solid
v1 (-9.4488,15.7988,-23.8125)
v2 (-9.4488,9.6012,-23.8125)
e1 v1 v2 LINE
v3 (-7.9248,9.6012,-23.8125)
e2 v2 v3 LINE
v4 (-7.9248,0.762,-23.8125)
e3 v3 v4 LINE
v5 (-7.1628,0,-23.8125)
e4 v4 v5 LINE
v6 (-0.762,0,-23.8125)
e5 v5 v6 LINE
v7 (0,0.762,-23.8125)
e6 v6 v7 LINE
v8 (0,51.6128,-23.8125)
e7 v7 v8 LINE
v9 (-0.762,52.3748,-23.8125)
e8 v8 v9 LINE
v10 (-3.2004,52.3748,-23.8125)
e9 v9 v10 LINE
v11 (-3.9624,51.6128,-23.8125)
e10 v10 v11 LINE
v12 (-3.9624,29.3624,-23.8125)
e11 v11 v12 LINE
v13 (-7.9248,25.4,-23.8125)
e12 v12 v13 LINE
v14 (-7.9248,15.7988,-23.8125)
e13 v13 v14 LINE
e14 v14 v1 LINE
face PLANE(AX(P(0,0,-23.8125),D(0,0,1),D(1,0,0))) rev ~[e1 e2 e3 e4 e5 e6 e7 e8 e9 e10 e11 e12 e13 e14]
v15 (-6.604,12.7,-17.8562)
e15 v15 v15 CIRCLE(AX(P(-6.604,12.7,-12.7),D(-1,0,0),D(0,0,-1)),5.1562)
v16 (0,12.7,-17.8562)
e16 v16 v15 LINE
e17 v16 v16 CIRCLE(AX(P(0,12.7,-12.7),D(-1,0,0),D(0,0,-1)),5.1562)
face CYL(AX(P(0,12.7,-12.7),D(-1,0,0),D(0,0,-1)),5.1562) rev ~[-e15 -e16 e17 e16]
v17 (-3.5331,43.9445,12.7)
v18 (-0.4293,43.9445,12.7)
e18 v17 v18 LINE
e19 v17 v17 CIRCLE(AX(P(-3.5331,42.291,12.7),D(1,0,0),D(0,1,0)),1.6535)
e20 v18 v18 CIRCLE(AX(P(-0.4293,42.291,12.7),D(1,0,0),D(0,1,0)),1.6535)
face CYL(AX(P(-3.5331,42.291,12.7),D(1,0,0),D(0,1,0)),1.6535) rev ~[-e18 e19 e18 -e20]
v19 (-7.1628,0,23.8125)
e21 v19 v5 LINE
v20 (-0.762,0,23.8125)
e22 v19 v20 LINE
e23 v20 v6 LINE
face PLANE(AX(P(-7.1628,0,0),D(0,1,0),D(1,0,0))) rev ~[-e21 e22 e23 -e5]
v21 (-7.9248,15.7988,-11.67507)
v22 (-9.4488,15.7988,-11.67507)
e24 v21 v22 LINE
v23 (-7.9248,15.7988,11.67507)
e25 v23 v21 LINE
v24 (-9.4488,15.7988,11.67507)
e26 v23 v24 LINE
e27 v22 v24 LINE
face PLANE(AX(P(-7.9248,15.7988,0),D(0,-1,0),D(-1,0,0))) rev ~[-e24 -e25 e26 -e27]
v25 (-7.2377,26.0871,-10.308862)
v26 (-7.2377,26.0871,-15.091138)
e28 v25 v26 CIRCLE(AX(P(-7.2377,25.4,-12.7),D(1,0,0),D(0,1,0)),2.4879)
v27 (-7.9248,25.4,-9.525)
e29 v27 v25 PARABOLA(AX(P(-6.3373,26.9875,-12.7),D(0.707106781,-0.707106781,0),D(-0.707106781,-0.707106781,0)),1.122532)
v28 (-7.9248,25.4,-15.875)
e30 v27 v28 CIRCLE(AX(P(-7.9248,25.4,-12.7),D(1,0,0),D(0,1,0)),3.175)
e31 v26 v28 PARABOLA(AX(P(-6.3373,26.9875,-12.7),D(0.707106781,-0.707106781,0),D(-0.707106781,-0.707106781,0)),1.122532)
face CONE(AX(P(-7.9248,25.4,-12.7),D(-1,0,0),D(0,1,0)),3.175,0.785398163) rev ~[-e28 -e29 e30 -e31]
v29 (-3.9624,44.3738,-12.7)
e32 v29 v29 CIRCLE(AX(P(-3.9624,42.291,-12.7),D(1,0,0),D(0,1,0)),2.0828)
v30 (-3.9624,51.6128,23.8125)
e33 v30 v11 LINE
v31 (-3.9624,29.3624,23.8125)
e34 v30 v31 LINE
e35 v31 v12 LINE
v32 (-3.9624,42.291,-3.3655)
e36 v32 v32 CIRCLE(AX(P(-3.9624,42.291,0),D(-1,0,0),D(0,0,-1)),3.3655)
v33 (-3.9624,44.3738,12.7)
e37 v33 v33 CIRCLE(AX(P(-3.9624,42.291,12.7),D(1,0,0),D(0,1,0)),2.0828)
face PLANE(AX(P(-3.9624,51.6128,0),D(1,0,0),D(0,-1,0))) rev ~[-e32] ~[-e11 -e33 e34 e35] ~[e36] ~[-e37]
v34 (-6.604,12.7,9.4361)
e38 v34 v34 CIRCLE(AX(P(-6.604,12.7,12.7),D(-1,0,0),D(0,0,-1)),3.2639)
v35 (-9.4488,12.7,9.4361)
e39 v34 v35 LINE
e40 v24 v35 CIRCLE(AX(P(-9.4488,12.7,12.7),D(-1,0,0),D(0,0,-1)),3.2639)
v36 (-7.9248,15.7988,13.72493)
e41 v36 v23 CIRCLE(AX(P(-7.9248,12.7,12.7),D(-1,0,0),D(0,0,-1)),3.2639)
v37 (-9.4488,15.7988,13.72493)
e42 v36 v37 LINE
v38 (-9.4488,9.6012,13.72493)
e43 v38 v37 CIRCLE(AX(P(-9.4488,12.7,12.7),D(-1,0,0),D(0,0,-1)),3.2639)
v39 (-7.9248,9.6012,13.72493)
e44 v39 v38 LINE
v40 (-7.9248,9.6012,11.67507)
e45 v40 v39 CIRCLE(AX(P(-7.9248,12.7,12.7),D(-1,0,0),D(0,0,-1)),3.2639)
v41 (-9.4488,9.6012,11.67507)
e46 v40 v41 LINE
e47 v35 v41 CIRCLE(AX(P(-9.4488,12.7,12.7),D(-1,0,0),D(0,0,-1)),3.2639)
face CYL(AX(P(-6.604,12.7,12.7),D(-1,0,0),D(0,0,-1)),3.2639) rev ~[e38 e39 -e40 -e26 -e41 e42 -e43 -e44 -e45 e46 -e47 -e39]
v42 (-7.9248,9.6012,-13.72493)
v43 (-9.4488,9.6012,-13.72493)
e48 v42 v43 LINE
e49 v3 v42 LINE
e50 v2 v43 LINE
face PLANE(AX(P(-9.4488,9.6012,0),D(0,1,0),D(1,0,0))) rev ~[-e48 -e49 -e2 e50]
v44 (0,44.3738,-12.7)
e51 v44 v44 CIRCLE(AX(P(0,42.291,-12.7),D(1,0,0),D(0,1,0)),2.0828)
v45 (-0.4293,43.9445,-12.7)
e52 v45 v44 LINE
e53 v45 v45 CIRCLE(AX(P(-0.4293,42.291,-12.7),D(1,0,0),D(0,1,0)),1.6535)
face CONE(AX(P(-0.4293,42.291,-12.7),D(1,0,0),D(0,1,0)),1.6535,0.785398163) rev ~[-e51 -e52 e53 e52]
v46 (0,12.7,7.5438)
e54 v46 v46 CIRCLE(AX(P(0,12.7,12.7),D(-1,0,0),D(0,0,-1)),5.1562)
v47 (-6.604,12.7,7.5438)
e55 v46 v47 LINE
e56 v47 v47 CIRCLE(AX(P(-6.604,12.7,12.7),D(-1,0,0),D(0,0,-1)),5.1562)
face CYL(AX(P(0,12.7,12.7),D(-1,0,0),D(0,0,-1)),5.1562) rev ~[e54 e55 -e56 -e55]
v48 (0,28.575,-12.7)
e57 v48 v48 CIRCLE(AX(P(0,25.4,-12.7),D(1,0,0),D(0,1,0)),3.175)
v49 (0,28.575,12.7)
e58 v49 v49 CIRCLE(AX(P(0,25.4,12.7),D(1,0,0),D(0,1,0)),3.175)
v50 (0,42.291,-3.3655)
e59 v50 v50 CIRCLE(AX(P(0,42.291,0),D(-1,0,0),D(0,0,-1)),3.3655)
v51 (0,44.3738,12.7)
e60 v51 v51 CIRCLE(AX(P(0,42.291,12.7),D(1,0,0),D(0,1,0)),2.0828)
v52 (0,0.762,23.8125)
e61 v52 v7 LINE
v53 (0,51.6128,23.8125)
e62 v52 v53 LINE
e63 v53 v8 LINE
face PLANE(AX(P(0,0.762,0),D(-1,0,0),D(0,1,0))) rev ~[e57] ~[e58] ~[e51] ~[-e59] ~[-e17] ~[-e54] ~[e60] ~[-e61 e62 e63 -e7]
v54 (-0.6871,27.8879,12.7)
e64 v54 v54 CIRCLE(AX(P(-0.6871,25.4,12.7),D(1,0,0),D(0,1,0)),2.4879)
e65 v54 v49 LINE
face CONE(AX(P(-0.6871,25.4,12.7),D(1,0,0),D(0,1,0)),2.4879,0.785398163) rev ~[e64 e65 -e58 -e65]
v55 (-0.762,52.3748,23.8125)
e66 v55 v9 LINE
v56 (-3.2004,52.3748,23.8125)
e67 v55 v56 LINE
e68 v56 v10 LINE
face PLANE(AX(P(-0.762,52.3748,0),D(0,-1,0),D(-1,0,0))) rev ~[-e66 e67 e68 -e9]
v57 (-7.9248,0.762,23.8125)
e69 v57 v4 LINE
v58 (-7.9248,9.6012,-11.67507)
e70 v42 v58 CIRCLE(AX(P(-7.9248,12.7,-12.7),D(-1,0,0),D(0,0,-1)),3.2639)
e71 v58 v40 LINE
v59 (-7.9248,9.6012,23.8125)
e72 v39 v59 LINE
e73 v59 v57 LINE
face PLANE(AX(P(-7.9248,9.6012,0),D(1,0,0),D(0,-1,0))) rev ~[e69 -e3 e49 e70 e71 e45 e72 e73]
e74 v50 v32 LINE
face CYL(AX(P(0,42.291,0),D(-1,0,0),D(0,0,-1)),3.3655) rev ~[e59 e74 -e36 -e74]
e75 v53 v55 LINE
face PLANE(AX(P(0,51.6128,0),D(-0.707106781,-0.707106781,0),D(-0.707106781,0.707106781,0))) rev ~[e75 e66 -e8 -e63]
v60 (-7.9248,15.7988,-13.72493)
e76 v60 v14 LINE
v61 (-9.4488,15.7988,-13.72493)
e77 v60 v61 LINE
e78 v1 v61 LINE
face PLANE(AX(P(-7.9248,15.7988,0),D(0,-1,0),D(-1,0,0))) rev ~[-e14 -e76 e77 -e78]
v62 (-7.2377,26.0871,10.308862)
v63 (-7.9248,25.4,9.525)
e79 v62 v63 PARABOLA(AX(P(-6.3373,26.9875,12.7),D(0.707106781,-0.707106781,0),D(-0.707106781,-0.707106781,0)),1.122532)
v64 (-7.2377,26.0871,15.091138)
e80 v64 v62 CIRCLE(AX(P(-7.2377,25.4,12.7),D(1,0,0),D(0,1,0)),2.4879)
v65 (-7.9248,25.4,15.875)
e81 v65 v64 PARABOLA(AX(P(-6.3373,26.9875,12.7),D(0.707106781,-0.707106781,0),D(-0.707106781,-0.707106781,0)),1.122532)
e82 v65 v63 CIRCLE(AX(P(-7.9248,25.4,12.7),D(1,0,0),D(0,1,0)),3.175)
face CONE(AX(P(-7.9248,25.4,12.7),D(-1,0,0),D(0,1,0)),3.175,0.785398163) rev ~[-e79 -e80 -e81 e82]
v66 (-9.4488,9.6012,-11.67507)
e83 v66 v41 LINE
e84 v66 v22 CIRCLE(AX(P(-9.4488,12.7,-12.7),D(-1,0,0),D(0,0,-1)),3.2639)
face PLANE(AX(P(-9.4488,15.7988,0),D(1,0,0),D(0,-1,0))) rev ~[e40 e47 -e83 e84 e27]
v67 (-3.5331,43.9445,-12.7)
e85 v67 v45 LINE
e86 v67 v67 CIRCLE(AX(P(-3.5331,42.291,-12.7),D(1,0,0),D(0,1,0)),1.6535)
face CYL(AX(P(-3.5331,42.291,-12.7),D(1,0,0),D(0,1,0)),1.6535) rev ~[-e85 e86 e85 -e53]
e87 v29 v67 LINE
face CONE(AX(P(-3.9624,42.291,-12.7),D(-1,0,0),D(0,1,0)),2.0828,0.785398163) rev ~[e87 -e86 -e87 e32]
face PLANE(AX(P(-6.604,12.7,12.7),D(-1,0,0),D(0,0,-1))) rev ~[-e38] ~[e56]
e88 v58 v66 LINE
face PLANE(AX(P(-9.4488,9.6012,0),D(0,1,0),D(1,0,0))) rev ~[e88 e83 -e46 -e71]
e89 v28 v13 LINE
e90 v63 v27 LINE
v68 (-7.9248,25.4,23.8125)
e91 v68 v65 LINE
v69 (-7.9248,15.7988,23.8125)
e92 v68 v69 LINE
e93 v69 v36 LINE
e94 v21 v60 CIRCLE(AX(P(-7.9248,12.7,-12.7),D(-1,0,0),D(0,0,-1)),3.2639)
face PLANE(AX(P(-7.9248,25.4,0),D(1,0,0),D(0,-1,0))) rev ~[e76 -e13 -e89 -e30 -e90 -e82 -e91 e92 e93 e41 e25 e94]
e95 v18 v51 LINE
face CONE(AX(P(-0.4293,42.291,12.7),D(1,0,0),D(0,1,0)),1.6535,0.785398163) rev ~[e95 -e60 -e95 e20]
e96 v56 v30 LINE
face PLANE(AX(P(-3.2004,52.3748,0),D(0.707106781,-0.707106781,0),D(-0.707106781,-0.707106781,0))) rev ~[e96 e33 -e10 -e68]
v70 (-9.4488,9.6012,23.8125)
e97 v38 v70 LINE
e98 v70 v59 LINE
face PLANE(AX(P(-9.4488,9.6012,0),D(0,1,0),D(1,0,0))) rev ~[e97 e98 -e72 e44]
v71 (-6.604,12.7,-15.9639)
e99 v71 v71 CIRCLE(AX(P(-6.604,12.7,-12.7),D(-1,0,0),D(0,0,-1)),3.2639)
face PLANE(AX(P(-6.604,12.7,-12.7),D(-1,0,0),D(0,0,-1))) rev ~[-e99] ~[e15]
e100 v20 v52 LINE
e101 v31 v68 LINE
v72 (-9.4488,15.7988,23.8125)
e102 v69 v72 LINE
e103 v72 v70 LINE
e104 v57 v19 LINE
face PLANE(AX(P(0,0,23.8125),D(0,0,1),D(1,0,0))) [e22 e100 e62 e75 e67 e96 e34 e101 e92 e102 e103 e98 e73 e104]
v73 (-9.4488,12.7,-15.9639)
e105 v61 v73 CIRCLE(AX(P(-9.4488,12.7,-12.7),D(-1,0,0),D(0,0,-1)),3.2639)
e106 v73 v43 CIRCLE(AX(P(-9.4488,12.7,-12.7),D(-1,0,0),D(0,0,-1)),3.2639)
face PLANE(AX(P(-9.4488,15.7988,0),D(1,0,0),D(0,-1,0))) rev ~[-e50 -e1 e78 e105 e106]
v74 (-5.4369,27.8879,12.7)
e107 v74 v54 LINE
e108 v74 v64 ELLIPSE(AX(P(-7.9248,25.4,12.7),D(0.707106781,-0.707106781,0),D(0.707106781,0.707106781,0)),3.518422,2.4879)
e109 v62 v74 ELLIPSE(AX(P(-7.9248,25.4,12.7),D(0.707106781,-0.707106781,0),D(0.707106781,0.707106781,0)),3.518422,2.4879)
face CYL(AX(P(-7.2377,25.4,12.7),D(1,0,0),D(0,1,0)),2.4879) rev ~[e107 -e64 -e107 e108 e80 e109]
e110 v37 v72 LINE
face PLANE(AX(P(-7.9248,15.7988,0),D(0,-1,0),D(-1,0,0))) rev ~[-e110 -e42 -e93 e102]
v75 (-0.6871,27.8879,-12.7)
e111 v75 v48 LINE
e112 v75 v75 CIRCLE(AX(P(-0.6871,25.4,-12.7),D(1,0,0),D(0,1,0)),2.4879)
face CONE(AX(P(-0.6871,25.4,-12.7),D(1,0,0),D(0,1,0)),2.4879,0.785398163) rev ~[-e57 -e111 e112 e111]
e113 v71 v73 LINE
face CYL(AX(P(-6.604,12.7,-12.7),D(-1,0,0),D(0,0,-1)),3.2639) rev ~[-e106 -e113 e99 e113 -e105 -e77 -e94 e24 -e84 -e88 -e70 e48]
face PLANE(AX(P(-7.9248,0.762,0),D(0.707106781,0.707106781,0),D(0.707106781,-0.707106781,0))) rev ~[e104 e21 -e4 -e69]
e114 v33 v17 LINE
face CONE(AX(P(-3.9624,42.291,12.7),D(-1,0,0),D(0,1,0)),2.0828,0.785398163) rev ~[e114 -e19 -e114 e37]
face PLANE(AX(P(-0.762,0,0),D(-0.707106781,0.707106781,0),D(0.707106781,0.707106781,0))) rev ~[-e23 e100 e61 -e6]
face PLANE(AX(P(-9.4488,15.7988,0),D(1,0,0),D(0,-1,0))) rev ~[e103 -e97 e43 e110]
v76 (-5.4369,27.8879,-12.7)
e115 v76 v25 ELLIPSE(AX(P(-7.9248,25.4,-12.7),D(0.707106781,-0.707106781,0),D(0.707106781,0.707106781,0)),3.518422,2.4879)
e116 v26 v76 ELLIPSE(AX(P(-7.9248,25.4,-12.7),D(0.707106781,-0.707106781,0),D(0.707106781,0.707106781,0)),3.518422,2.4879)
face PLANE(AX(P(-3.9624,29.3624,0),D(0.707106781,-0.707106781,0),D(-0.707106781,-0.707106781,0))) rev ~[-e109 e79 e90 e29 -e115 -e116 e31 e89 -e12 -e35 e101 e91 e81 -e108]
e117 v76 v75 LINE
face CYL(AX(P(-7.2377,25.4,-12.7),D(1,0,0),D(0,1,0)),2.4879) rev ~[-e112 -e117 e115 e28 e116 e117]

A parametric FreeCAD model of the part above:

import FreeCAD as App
import Part
import Sketcher

V = App.Vector
Q = App.Units.Quantity

doc = App.newDocument("Part")
body = doc.addObject("PartDesign::Body", "Body")

# Sketch on XY plane
sketch1 = doc.addObject("Sketcher::SketchObject", "Sketch")
body.addObject(sketch1)
sketch1.AttachmentSupport = (doc.XY_Plane, [""])
sketch1.MapMode = "FlatFace"
sketch1.addGeometry([
    Part.LineSegment(V(-7.9, 15.8, 0), V(-9.4, 15.8, 0)),  # 0
    Part.LineSegment(V(-9.4, 15.8, 0), V(-9.4, 9.6, 0)),  # 1
    Part.LineSegment(V(-9.4, 9.6, 0), V(-7.9, 9.6, 0)),  # 2
    Part.LineSegment(V(-7.9, 9.6, 0), V(-7.9, 0.8, 0)),  # 3
    Part.LineSegment(V(-7.9, 0.8, 0), V(-7.2, 0, 0)),  # 4
    Part.LineSegment(V(-7.2, 0, 0), V(-0.8, 0, 0)),  # 5
    Part.LineSegment(V(-0.8, 0, 0), V(0, 0.8, 0)),  # 6
    Part.LineSegment(V(0, 0.8, 0), V(0, 51.6, 0)),  # 7
    Part.LineSegment(V(0, 51.6, 0), V(-0.8, 52.4, 0)),  # 8
    Part.LineSegment(V(-0.8, 52.4, 0), V(-3.2, 52.4, 0)),  # 9
    Part.LineSegment(V(-3.2, 52.4, 0), V(-4, 51.6, 0)),  # 10
    Part.LineSegment(V(-4, 51.6, 0), V(-4, 29.4, 0)),  # 11
    Part.LineSegment(V(-4, 29.4, 0), V(-7.9, 25.4, 0)),  # 12
    Part.LineSegment(V(-7.9, 25.4, 0), V(-7.9, 15.8, 0)),  # 13
], False)
sketch1.addConstraint([
    Sketcher.Constraint("Coincident", 0, 2, 1, 1),
    Sketcher.Constraint("Coincident", 1, 2, 2, 1),
    Sketcher.Constraint("Coincident", 2, 2, 3, 1),
    Sketcher.Constraint("Coincident", 3, 2, 4, 1),
    Sketcher.Constraint("Coincident", 4, 2, 5, 1),
    Sketcher.Constraint("Coincident", 5, 2, 6, 1),
    Sketcher.Constraint("Coincident", 6, 2, 7, 1),
    Sketcher.Constraint("Coincident", 7, 2, 8, 1),
    Sketcher.Constraint("Coincident", 8, 2, 9, 1),
    Sketcher.Constraint("Coincident", 9, 2, 10, 1),
    Sketcher.Constraint("Coincident", 10, 2, 11, 1),
    Sketcher.Constraint("Coincident", 11, 2, 12, 1),
    Sketcher.Constraint("Coincident", 12, 2, 13, 1),
    Sketcher.Constraint("Coincident", 13, 2, 0, 1),
    Sketcher.Constraint("Horizontal", 0),
    Sketcher.Constraint("Vertical", 1),
    Sketcher.Constraint("Horizontal", 2),
    Sketcher.Constraint("Vertical", 3),
    Sketcher.Constraint("Horizontal", 5),
    Sketcher.Constraint("Vertical", 7),
    Sketcher.Constraint("Horizontal", 9),
    Sketcher.Constraint("Vertical", 11),
    Sketcher.Constraint("Vertical", 13),
    Sketcher.Constraint("PointOnObject", 4, 2, -1),
    Sketcher.Constraint("PointOnObject", 6, 2, -2),
    Sketcher.Constraint("Perpendicular", 4, 6),
    Sketcher.Constraint("Perpendicular", 6, 8),
    Sketcher.Constraint("Perpendicular", 8, 10),
    Sketcher.Constraint("Parallel", 10, 12),
    Sketcher.Constraint("Horizontal", 3, 2, 6, 2),
    Sketcher.Constraint("Horizontal", 7, 2, 10, 2),
    Sketcher.Constraint("Vertical", 5, 2, 8, 2),
    Sketcher.Constraint("Vertical", 3, 2, 12, 2),
    Sketcher.Constraint("Equal", 4, 6),
    Sketcher.Constraint("DistanceY", -1, 1, 12, 2, Q("1 in")),
    Sketcher.Constraint("DistanceX", 0, 2, 0, 1, Q("0.06 in")),
    Sketcher.Constraint("DistanceX", 5, 1, 5, 2, Q("0.252 in")),
    Sketcher.Constraint("DistanceX", 9, 2, 9, 1, Q("0.096 in")),
    Sketcher.Constraint("DistanceY", 1, 2, 1, 1, Q("0.244 in")),
    Sketcher.Constraint("DistanceY", 3, 2, 3, 1, Q("0.348 in")),
    Sketcher.Constraint("DistanceY", 7, 1, 7, 2, Q("2.002 in")),
    Sketcher.Constraint("DistanceY", 11, 2, 11, 1, Q("0.876 in")),
])
pad1 = doc.addObject("PartDesign::Pad", "Pad")
body.addObject(pad1)
pad1.Profile = sketch1
pad1.Length = Q("1.875 in")
pad1.Midplane = True

# Sketch on XY plane
sketch2 = doc.addObject("Sketcher::SketchObject", "Sketch001")
body.addObject(sketch2)
sketch2.AttachmentSupport = (doc.XY_Plane, [""])
sketch2.MapMode = "FlatFace"
sketch2.AttachmentOffset = App.Placement(V(0, 0, 0.5 * 25.4), App.Rotation())
sketch2.addGeometry([
    Part.LineSegment(V(-4, 42.3, 0), V(0, 42.3, 0)),  # 0
    Part.LineSegment(V(0, 42.3, 0), V(0, 44.4, 0)),  # 1
    Part.LineSegment(V(0, 44.4, 0), V(-0.4, 43.9, 0)),  # 2
    Part.LineSegment(V(-0.4, 43.9, 0), V(-3.5, 43.9, 0)),  # 3
    Part.LineSegment(V(-3.5, 43.9, 0), V(-4, 44.4, 0)),  # 4
    Part.LineSegment(V(-4, 44.4, 0), V(-4, 42.3, 0)),  # 5
], False)
sketch2.addGeometry(Part.LineSegment(V(-4, 42.3, 0), V(0, 42.3, 0)), True)  # axis
sketch2.addConstraint([
    Sketcher.Constraint("Coincident", 0, 2, 1, 1),
    Sketcher.Constraint("Coincident", 1, 2, 2, 1),
    Sketcher.Constraint("Coincident", 2, 2, 3, 1),
    Sketcher.Constraint("Coincident", 3, 2, 4, 1),
    Sketcher.Constraint("Coincident", 4, 2, 5, 1),
    Sketcher.Constraint("Coincident", 5, 2, 0, 1),
    Sketcher.Constraint("Horizontal", 0),
    Sketcher.Constraint("Vertical", 1),
    Sketcher.Constraint("Horizontal", 3),
    Sketcher.Constraint("Vertical", 5),
    Sketcher.Constraint("Horizontal", 6),
    Sketcher.Constraint("Coincident", 6, 1, 5, 2),
    Sketcher.Constraint("PointOnObject", 0, 2, -2),
    Sketcher.Constraint("PointOnObject", 6, 2, -2),
    Sketcher.Constraint("Perpendicular", 2, 4),
    Sketcher.Constraint("Horizontal", 1, 2, 4, 2),
    Sketcher.Constraint("Equal", 2, 4),
    Sketcher.Constraint("DistanceX", 0, 1, 0, 2, Q("0.156 in")),
    Sketcher.Constraint("DistanceY", 1, 1, 1, 2, Q("0.082 in")),
    Sketcher.Constraint("DistanceX", 3, 2, 3, 1, Q("0.1222 in")),
    Sketcher.Constraint("DistanceY", -1, 1, 0, 2, Q("1.665 in")),
])
groove = doc.addObject("PartDesign::Groove", "Groove")
body.addObject(groove)
groove.Profile = sketch2
groove.ReferenceAxis = (sketch2, ["Axis0"])
groove.Angle = 360
doc.recompute()

linearpattern = doc.addObject("PartDesign::LinearPattern", "LinearPattern")
body.addObject(linearpattern)
linearpattern.Originals = [groove]
linearpattern.Direction = (doc.Z_Axis, [""])
linearpattern.Mode = "offset"
linearpattern.Offset = Q("1 in")
linearpattern.Occurrences = 2
linearpattern.Reversed = True
body.Tip = linearpattern

# Sketch on XY plane
sketch3 = doc.addObject("Sketcher::SketchObject", "Sketch002")
body.addObject(sketch3)
sketch3.AttachmentSupport = (doc.XY_Plane, [""])
sketch3.MapMode = "FlatFace"
sketch3.AttachmentOffset = App.Placement(V(0, 0, 0.5 * 25.4), App.Rotation())
sketch3.addGeometry([
    Part.LineSegment(V(-7.9, 25.4, 0), V(0, 25.4, 0)),  # 0
    Part.LineSegment(V(0, 25.4, 0), V(0, 28.6, 0)),  # 1
    Part.LineSegment(V(0, 28.6, 0), V(-0.7, 27.9, 0)),  # 2
    Part.LineSegment(V(-0.7, 27.9, 0), V(-7.2, 27.9, 0)),  # 3
    Part.LineSegment(V(-7.2, 27.9, 0), V(-7.9, 28.6, 0)),  # 4
    Part.LineSegment(V(-7.9, 28.6, 0), V(-7.9, 25.4, 0)),  # 5
], False)
sketch3.addGeometry(Part.LineSegment(V(-7.9, 25.4, 0), V(0, 25.4, 0)), True)  # axis
sketch3.addConstraint([
    Sketcher.Constraint("Coincident", 0, 2, 1, 1),
    Sketcher.Constraint("Coincident", 1, 2, 2, 1),
    Sketcher.Constraint("Coincident", 2, 2, 3, 1),
    Sketcher.Constraint("Coincident", 3, 2, 4, 1),
    Sketcher.Constraint("Coincident", 4, 2, 5, 1),
    Sketcher.Constraint("Coincident", 5, 2, 0, 1),
    Sketcher.Constraint("Horizontal", 0),
    Sketcher.Constraint("Vertical", 1),
    Sketcher.Constraint("Horizontal", 3),
    Sketcher.Constraint("Vertical", 5),
    Sketcher.Constraint("Horizontal", 6),
    Sketcher.Constraint("Coincident", 6, 1, 5, 2),
    Sketcher.Constraint("PointOnObject", 0, 2, -2),
    Sketcher.Constraint("PointOnObject", 6, 2, -2),
    Sketcher.Constraint("Perpendicular", 2, 4),
    Sketcher.Constraint("Horizontal", 1, 2, 4, 2),
    Sketcher.Constraint("Equal", 2, 4),
    Sketcher.Constraint("DistanceY", -1, 1, 0, 2, Q("1 in")),
    Sketcher.Constraint("DistanceX", 0, 1, 0, 2, Q("0.312 in")),
    Sketcher.Constraint("DistanceY", 1, 1, 1, 2, Q("0.125 in")),
    Sketcher.Constraint("DistanceX", 3, 2, 3, 1, Q("0.2579 in")),
])
groove2 = doc.addObject("PartDesign::Groove", "Groove001")
body.addObject(groove2)
groove2.Profile = sketch3
groove2.ReferenceAxis = (sketch3, ["Axis0"])
groove2.Angle = 360
doc.recompute()

linearpattern2 = doc.addObject("PartDesign::LinearPattern", "LinearPattern001")
body.addObject(linearpattern2)
linearpattern2.Originals = [groove2]
linearpattern2.Direction = (doc.Z_Axis, [""])
linearpattern2.Mode = "offset"
linearpattern2.Offset = Q("1 in")
linearpattern2.Occurrences = 2
linearpattern2.Reversed = True
body.Tip = linearpattern2

# Sketch on YZ plane
sketch4 = doc.addObject("Sketcher::SketchObject", "Sketch003")
body.addObject(sketch4)
sketch4.AttachmentSupport = (doc.YZ_Plane, [""])
sketch4.MapMode = "FlatFace"
sketch4.addGeometry(Part.Circle(V(12.7, 12.7, 0), V(0, 0, 1), 3.3), False)
sketch4.addConstraint([
    Sketcher.Constraint("Diameter", 0, Q("0.257 in")),
    Sketcher.Constraint("DistanceX", -1, 1, 0, 3, Q("0.5 in")),
    Sketcher.Constraint("DistanceY", -1, 1, 0, 3, Q("0.5 in")),
])
doc.recompute()
hole = doc.addObject("PartDesign::Hole", "Hole")
body.addObject(hole)
hole.Profile = sketch4
hole.ThreadType = "None"
hole.Diameter = Q("0.257 in")
hole.DepthType = "Dimension"
hole.Depth = Q("0.372 in")
hole.DrillPoint = "Flat"
hole.HoleCutType = "Counterbore"
hole.HoleCutDiameter = Q("0.406 in")
hole.HoleCutDepth = Q("0.26 in")
doc.recompute()

linearpattern3 = doc.addObject("PartDesign::LinearPattern", "LinearPattern002")
body.addObject(linearpattern3)
linearpattern3.Originals = [hole]
linearpattern3.Direction = (doc.Z_Axis, [""])
linearpattern3.Mode = "offset"
linearpattern3.Offset = Q("1 in")
linearpattern3.Occurrences = 2
linearpattern3.Reversed = True
body.Tip = linearpattern3

# Sketch on YZ plane
sketch5 = doc.addObject("Sketcher::SketchObject", "Sketch004")
body.addObject(sketch5)
sketch5.AttachmentSupport = (doc.YZ_Plane, [""])
sketch5.MapMode = "FlatFace"
sketch5.addGeometry(Part.Circle(V(42.3, 0, 0), V(0, 0, 1), 3.4), False)
sketch5.addConstraint([
    Sketcher.Constraint("PointOnObject", 0, 3, -1),
    Sketcher.Constraint("Diameter", 0, Q("0.265 in")),
    Sketcher.Constraint("DistanceX", -1, 1, 0, 3, Q("1.665 in")),
])
doc.recompute()
hole2 = doc.addObject("PartDesign::Hole", "Hole001")
body.addObject(hole2)
hole2.Profile = sketch5
hole2.ThreadType = "None"
hole2.Diameter = Q("0.265 in")
hole2.DepthType = "Dimension"
hole2.Depth = Q("0.156 in")
hole2.DrillPoint = "Flat"

doc.recompute()
